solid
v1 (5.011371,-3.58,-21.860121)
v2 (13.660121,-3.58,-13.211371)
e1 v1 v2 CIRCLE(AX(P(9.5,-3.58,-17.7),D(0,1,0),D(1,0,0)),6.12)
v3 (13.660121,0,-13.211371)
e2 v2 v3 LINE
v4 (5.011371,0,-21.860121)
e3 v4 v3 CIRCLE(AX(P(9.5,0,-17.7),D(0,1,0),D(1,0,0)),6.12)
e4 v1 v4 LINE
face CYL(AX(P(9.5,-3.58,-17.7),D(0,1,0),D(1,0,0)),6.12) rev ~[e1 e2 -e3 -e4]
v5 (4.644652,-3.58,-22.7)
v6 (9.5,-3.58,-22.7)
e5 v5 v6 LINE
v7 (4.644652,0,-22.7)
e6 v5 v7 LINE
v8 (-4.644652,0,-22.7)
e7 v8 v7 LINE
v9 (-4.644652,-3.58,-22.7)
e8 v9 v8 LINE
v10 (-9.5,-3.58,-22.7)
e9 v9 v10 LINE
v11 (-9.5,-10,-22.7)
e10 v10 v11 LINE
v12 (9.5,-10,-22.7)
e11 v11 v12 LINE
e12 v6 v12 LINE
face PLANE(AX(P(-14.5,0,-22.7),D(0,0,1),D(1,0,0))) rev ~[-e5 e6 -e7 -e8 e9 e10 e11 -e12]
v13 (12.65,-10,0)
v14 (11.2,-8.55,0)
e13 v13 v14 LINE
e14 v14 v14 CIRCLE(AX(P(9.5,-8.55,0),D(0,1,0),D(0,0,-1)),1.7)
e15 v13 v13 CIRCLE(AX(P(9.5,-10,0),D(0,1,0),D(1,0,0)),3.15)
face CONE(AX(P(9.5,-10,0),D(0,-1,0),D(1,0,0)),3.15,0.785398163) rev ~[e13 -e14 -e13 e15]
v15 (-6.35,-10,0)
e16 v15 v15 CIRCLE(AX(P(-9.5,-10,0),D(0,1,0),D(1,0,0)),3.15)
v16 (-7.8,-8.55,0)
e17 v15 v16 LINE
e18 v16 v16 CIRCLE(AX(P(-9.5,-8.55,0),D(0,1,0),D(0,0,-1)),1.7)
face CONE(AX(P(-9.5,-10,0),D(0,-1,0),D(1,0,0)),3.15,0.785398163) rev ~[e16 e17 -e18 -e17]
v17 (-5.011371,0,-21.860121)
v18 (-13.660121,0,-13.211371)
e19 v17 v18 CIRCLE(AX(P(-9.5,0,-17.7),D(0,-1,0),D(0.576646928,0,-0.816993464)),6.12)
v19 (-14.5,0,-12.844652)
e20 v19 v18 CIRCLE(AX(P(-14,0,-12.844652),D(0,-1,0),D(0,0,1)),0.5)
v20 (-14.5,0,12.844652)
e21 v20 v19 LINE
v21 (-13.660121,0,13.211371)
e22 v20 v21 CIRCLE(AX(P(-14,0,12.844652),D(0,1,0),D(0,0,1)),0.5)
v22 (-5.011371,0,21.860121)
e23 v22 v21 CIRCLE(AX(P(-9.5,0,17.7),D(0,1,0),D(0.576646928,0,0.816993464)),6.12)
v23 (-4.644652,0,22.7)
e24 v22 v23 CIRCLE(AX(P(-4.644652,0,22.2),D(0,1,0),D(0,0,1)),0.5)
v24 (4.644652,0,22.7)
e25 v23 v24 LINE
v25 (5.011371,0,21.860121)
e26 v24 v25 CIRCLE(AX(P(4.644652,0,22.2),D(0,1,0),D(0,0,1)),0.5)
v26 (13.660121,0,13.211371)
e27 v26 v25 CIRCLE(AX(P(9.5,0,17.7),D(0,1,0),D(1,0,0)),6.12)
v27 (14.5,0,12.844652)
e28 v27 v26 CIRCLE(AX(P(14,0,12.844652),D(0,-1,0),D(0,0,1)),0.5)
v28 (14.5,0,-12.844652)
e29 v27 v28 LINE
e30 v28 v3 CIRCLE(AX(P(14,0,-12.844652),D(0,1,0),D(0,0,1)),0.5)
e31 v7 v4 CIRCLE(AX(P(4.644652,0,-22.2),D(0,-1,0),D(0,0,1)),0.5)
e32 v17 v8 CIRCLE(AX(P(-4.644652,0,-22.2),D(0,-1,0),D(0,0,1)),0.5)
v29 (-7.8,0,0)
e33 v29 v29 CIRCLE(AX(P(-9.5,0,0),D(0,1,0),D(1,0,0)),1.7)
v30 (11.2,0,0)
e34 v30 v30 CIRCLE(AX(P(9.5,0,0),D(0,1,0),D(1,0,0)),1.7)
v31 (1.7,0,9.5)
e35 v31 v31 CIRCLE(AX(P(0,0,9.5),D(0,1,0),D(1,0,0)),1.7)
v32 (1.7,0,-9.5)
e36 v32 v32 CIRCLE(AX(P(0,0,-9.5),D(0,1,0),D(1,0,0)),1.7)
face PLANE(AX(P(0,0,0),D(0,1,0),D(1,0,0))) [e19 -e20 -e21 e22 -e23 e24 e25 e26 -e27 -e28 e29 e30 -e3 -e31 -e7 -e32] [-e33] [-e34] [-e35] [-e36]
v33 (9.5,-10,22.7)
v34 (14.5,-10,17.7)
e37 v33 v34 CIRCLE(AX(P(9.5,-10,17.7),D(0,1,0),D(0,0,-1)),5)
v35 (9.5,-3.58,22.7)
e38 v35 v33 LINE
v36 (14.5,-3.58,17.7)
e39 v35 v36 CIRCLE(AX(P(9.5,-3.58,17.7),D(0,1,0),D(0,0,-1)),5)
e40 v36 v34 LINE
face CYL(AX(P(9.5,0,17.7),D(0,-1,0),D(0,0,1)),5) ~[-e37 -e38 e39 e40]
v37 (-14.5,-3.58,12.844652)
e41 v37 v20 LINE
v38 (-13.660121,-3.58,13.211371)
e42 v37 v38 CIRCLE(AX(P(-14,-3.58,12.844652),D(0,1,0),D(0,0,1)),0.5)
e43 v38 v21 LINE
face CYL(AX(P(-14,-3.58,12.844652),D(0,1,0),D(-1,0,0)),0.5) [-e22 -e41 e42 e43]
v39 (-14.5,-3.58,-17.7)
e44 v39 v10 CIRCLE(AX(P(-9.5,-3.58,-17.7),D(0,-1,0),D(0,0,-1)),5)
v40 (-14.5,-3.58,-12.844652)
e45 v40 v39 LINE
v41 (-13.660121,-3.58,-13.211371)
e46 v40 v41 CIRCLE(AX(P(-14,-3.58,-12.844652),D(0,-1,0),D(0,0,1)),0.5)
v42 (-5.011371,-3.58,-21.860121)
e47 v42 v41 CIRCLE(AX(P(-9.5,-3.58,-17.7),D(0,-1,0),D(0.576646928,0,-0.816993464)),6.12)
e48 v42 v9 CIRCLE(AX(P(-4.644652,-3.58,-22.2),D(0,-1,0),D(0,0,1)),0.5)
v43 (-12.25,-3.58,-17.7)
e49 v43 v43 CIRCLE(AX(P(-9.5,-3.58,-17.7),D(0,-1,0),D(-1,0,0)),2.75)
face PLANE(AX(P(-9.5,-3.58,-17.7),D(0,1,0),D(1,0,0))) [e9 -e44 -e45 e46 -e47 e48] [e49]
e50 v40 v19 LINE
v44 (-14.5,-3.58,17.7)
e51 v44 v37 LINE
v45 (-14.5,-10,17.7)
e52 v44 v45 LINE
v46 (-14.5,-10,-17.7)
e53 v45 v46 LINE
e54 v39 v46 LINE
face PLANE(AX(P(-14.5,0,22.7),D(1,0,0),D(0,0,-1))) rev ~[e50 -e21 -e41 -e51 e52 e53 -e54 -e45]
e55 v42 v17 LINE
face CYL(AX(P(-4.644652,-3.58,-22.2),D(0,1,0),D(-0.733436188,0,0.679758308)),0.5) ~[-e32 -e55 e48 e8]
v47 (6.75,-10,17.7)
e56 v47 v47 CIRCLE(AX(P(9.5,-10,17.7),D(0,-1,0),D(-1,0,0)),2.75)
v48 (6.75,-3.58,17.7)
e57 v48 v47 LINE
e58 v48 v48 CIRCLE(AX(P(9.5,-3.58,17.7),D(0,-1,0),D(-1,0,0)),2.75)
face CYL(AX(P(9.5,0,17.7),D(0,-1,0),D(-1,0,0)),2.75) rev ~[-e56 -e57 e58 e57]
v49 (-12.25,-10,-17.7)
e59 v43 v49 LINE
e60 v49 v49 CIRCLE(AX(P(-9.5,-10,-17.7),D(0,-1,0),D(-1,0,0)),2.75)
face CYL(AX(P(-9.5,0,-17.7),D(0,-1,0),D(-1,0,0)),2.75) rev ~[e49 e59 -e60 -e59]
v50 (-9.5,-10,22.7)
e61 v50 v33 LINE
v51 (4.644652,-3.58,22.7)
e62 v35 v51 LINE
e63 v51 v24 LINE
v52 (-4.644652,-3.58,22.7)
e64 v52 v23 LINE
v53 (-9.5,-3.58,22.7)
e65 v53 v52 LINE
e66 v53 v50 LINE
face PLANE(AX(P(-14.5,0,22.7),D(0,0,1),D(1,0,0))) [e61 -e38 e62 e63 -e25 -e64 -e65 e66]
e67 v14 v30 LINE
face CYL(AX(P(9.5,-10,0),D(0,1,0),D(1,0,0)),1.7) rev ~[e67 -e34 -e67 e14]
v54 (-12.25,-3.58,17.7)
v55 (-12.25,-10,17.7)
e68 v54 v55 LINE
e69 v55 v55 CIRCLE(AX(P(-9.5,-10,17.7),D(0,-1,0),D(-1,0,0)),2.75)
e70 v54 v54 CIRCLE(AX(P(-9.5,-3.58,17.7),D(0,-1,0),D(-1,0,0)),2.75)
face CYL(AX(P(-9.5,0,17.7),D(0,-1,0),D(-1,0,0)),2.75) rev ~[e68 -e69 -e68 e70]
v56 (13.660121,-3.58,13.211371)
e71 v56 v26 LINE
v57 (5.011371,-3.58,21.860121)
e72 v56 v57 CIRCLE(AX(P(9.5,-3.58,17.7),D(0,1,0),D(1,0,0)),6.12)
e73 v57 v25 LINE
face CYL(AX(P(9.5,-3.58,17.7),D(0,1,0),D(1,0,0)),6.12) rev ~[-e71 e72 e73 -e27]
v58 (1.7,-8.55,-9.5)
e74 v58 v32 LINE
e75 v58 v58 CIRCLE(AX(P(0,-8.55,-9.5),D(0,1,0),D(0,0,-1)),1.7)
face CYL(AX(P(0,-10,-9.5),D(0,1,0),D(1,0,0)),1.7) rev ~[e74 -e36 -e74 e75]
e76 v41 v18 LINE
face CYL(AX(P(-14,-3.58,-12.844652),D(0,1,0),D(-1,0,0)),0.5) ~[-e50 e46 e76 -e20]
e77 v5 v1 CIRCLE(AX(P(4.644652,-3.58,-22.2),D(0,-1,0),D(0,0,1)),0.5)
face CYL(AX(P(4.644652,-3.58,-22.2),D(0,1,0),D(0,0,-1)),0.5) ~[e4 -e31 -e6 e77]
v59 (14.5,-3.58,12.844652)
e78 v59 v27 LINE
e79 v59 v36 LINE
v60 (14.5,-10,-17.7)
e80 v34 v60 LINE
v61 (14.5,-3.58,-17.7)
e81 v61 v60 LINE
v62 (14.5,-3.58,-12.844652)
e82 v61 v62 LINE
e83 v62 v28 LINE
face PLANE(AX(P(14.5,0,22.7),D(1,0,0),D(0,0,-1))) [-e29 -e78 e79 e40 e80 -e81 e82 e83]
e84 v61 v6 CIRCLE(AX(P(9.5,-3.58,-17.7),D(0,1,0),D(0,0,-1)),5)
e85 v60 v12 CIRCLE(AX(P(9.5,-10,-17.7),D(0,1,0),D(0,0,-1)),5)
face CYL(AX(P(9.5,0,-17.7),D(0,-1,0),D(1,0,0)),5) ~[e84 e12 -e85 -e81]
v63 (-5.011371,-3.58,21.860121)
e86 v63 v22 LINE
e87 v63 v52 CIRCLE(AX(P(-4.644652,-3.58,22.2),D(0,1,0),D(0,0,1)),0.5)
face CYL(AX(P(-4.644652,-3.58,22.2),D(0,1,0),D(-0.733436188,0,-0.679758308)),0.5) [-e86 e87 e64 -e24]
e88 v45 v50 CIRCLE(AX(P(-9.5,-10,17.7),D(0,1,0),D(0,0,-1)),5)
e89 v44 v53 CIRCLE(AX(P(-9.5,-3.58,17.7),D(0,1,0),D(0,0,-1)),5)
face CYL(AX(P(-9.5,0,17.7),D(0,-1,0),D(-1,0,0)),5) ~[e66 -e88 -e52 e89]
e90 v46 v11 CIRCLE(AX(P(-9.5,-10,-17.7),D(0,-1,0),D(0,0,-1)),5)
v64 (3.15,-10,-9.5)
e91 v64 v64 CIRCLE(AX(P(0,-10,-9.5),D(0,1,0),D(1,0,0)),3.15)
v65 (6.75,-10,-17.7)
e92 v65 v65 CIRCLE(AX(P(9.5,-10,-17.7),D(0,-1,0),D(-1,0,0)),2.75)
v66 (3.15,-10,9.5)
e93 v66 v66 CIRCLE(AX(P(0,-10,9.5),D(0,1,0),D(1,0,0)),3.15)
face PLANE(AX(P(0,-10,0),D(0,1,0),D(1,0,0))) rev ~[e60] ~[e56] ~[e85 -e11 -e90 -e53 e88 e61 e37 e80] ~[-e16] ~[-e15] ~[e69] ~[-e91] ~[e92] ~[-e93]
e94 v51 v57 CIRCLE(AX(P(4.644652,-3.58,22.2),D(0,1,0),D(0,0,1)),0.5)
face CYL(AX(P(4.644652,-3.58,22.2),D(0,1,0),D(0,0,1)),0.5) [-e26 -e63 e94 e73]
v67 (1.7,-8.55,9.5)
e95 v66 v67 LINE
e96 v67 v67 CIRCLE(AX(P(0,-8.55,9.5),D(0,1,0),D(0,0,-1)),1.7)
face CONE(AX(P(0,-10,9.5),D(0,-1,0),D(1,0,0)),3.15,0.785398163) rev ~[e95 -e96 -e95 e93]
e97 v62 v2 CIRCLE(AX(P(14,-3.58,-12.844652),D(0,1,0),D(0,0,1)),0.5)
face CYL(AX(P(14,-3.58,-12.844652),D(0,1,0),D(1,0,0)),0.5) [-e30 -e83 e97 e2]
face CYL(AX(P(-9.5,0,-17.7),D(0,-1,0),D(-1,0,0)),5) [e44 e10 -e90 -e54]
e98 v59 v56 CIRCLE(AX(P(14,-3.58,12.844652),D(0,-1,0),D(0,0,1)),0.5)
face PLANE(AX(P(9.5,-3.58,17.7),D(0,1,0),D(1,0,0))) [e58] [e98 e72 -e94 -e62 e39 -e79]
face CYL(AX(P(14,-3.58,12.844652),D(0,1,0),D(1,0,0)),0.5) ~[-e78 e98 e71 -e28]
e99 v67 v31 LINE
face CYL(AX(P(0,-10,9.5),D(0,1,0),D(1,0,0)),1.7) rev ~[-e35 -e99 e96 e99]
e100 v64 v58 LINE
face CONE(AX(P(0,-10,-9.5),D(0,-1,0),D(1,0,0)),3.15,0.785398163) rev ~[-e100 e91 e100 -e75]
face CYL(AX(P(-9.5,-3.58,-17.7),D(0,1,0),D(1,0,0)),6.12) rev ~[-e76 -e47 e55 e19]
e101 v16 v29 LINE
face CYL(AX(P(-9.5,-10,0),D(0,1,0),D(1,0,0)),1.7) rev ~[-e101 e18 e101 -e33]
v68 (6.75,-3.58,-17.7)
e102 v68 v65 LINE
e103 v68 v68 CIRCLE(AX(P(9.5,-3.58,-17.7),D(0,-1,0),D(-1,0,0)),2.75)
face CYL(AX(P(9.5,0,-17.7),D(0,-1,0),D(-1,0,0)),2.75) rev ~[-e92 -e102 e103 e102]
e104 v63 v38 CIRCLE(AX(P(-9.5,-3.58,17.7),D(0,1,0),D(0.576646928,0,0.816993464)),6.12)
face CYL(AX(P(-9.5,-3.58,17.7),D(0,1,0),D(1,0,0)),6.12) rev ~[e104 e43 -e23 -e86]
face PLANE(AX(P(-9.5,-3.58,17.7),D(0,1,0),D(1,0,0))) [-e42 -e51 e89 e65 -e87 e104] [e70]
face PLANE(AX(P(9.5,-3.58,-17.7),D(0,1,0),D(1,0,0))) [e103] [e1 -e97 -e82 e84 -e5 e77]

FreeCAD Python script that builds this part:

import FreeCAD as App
import Part
import Sketcher


def edges_at(feature, points):
    """Names of the edges that pass closest to the given points."""
    edges = feature.Shape.Edges
    near = lambda p: min(range(len(edges)), key=lambda i: edges[i].distToShape(Part.Vertex(*p))[0])
    return sorted({f"Edge{near(p) + 1}" for p in points})


def add_polygon(sketch, points):
    """Adds a closed chain of lines whose ends are joined by coincident constraints."""
    first, n = sketch.GeometryCount, len(points)
    for a, b in zip(points, points[1:] + points[:1]):
        sketch.addGeometry(Part.LineSegment(App.Vector(*a, 0), App.Vector(*b, 0)), False)
    for i in range(n):
        sketch.addConstraint(Sketcher.Constraint("Coincident", first + i, 2, first + (i + 1) % n, 1))

doc = App.newDocument("Part")
body = doc.addObject("PartDesign::Body", "Body")

# Sketch on XZ plane
sketch1 = body.newObject("Sketcher::SketchObject", "Sketch")
sketch1.AttachmentSupport = (doc.getObject("XZ_Plane"), [""])
sketch1.MapMode = "FlatFace"
add_polygon(sketch1, [(-14.5, -22.7), (-14.5, 22.7), (14.5, 22.7), (14.5, -22.7)])  # lines 0-3
sketch1.addConstraint(Sketcher.Constraint("Vertical", 0))
sketch1.addConstraint(Sketcher.Constraint("Horizontal", 1))
sketch1.addConstraint(Sketcher.Constraint("Vertical", 2))
sketch1.addConstraint(Sketcher.Constraint("Horizontal", 3))
sketch1.addConstraint(Sketcher.Constraint("Symmetric", 0, 2, 2, 2, -1, 1))
sketch1.addConstraint(Sketcher.Constraint("DistanceX", 1, 1, 1, 2, 29.0))
sketch1.addConstraint(Sketcher.Constraint("DistanceY", 0, 1, 0, 2, 45.4))
pad1 = body.newObject("PartDesign::Pad", "Pad")
pad1.Profile = sketch1
pad1.Length = 10

# Sketch on XZ plane
sketch2 = body.newObject("Sketcher::SketchObject", "Sketch001")
sketch2.AttachmentSupport = (doc.getObject("XZ_Plane"), [""])
sketch2.MapMode = "FlatFace"
sketch2.addGeometry(Part.Circle(App.Vector(-9.5, -17.7, 0), App.Vector(0, 0, 1), 2.75), False)
sketch2.addGeometry(Part.Circle(App.Vector(9.5, -17.7, 0), App.Vector(0, 0, 1), 2.75), False)
sketch2.addGeometry(Part.Circle(App.Vector(9.5, 17.7, 0), App.Vector(0, 0, 1), 2.75), False)
sketch2.addGeometry(Part.Circle(App.Vector(-9.5, 17.7, 0), App.Vector(0, 0, 1), 2.75), False)
sketch2.addConstraint(Sketcher.Constraint("Equal", 0, 1))
sketch2.addConstraint(Sketcher.Constraint("Equal", 1, 2))
sketch2.addConstraint(Sketcher.Constraint("Equal", 2, 3))
sketch2.addConstraint(Sketcher.Constraint("Symmetric", 0, 3, 2, 3, -1, 1))
sketch2.addConstraint(Sketcher.Constraint("Symmetric", 1, 3, 3, 3, -1, 1))
sketch2.addConstraint(Sketcher.Constraint("Symmetric", 0, 3, 1, 3, -2))
sketch2.addConstraint(Sketcher.Constraint("Diameter", 0, 5.5))
sketch2.addConstraint(Sketcher.Constraint("DistanceX", 0, 3, 1, 3, 19.0))
sketch2.addConstraint(Sketcher.Constraint("DistanceY", 0, 3, -1, 1, 17.7))
doc.recompute()
hole = body.newObject("PartDesign::Hole", "Hole")
hole.Profile = sketch2
hole.ThreadType = "None"
hole.Diameter = 5.5
hole.DepthType = "Dimension"
hole.Depth = 15
hole.DrillPoint = "Angled"
hole.DrillPointAngle = 118
hole.HoleCutType = "Counterbore"
hole.HoleCutDiameter = 12.24
hole.HoleCutDepth = 3.58
hole.Reversed = True

# Sketch on XZ plane
sketch3 = body.newObject("Sketcher::SketchObject", "Sketch002")
sketch3.AttachmentSupport = (doc.getObject("XZ_Plane"), [""])
sketch3.MapMode = "FlatFace"
sketch3.AttachmentOffset = App.Placement(App.Vector(0, 0, 10), App.Rotation())
sketch3.addGeometry(Part.Circle(App.Vector(9.5, 0, 0), App.Vector(0, 0, 1), 1.7), False)
sketch3.addGeometry(Part.Circle(App.Vector(0, -9.5, 0), App.Vector(0, 0, 1), 1.7), False)
sketch3.addGeometry(Part.Circle(App.Vector(-9.5, 0, 0), App.Vector(0, 0, 1), 1.7), False)
sketch3.addGeometry(Part.Circle(App.Vector(0, 9.5, 0), App.Vector(0, 0, 1), 1.7), False)
sketch3.addConstraint(Sketcher.Constraint("Equal", 0, 1))
sketch3.addConstraint(Sketcher.Constraint("Equal", 1, 2))
sketch3.addConstraint(Sketcher.Constraint("Equal", 2, 3))
sketch3.addConstraint(Sketcher.Constraint("Symmetric", 0, 3, 2, 3, -1, 1))
sketch3.addConstraint(Sketcher.Constraint("Symmetric", 1, 3, 3, 3, -1, 1))
sketch3.addConstraint(Sketcher.Constraint("PointOnObject", 0, 3, -1))
sketch3.addConstraint(Sketcher.Constraint("PointOnObject", 1, 3, -2))
sketch3.addConstraint(Sketcher.Constraint("Diameter", 0, 3.4))
sketch3.addConstraint(Sketcher.Constraint("DistanceX", 2, 3, 0, 3, 19.0))
sketch3.addConstraint(Sketcher.Constraint("DistanceY", 1, 3, 3, 3, 19.0))
doc.recompute()
hole2 = body.newObject("PartDesign::Hole", "Hole001")
hole2.Profile = sketch3
hole2.ThreadType = "None"
hole2.Diameter = 3.4
hole2.DepthType = "ThroughAll"
hole2.HoleCutType = "Countersink"
hole2.HoleCutDiameter = 6.3
hole2.HoleCutCountersinkAngle = 90
doc.recompute()

fillet = body.newObject("PartDesign::Fillet", "Fillet")
fillet.Base = (hole2, edges_at(hole2, [
    (-14.5, -5, -22.7),
    (14.5, -5, -22.7),
    (14.5, -5, 22.7),
    (-14.5, -5, 22.7),
]))
fillet.Radius = 5
doc.recompute()

fillet2 = body.newObject("PartDesign::Fillet", "Fillet001")
fillet2.Base = (fillet, edges_at(fillet, [
    (-5.971, -1.79, 22.7),
    (-14.5, -1.79, 14.171),
    (14.5, -1.79, 14.171),
    (5.971, -1.79, 22.7),
    (14.5, -1.79, -14.171),
    (5.971, -1.79, -22.7),
    (-5.971, -1.79, -22.7),
    (-14.5, -1.79, -14.171),
]))
fillet2.Radius = 0.5

doc.recompute()
